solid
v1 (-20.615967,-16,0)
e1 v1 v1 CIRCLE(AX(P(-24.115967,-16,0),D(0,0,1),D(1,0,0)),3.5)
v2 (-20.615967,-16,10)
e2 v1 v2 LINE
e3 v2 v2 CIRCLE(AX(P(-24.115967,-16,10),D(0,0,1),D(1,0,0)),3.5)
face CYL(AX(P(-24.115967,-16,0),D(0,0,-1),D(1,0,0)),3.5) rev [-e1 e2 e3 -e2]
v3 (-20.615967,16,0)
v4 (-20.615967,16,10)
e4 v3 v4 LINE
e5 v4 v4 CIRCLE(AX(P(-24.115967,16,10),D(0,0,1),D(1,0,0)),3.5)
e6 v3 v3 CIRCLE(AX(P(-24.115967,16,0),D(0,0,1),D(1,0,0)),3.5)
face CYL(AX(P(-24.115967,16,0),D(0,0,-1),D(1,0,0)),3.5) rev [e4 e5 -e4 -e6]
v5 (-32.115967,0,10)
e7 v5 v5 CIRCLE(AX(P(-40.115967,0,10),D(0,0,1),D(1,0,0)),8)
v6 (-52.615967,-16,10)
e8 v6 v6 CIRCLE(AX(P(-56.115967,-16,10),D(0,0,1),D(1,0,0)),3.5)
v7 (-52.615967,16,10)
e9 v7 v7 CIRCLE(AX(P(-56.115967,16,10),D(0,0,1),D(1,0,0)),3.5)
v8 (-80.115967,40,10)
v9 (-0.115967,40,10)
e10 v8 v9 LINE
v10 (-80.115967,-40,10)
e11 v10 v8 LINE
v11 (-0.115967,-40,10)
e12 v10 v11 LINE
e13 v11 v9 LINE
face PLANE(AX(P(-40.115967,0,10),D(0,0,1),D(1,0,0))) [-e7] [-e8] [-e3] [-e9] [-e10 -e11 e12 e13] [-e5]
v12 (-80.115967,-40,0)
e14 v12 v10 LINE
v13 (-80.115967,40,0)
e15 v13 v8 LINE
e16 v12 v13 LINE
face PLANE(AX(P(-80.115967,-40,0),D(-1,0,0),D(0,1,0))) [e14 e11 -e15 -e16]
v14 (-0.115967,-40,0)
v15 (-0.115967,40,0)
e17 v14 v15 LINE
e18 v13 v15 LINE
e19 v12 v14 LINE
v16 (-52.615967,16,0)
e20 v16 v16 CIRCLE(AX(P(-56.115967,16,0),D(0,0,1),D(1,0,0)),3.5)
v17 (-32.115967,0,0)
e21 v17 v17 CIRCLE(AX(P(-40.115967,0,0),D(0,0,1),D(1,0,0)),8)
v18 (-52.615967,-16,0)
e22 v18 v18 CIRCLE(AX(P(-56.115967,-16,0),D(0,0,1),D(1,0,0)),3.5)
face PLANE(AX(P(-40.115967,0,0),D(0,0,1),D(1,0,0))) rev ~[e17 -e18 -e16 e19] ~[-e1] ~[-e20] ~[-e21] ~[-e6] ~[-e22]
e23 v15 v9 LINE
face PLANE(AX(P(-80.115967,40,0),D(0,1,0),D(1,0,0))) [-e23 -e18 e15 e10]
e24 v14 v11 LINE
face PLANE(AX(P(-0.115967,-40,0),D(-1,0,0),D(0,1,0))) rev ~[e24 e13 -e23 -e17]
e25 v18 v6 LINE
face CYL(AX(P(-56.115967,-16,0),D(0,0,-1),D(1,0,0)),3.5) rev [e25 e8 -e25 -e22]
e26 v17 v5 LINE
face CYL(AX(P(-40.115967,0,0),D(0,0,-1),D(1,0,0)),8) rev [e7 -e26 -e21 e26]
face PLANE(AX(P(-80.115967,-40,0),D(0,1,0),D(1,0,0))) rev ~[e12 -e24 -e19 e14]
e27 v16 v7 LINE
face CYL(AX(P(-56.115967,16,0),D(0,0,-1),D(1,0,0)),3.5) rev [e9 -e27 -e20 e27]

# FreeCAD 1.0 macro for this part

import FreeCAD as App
import Part
import Sketcher

V = App.Vector
Q = App.Units.Quantity

doc = App.newDocument("Part")
params = doc.addObject("Spreadsheet::Sheet", "Params")
for row, (alias, value) in enumerate([
    ("sketch1_diameter", "7 mm"),
    ("sketch1_diameter2", "16 mm"),
    ("sketch1_width", "80 mm"),
    ("pad1_length", "10 mm"),
], start=1):
    params.set(f"A{row}", alias)
    params.set(f"B{row}", "=" + value)
    params.setAlias(f"B{row}", alias)

body = doc.addObject("PartDesign::Body", "Body")

# Sketch on XY plane
sketch1 = doc.addObject("Sketcher::SketchObject", "Sketch")
body.addObject(sketch1)
sketch1.AttachmentSupport = (doc.XY_Plane, [""])
sketch1.MapMode = "FlatFace"
sketch1.addGeometry(Part.LineSegment(V(-80.1, 40, 0), V(-80.1, -40, 0)), False)
sketch1.addGeometry(Part.LineSegment(V(-80.1, -40, 0), V(-0.1, -40, 0)), False)
sketch1.addGeometry(Part.LineSegment(V(-0.1, -40, 0), V(-0.1, 40, 0)), False)
sketch1.addGeometry(Part.LineSegment(V(-0.1, 40, 0), V(-80.1, 40, 0)), False)
sketch1.addGeometry(Part.Circle(V(-56.1, -16, 0), V(0, 0, 1), 3.5), False)
sketch1.addGeometry(Part.Circle(V(-24.1, -16, 0), V(0, 0, 1), 3.5), False)
sketch1.addGeometry(Part.Circle(V(-56.1, 16, 0), V(0, 0, 1), 3.5), False)
sketch1.addGeometry(Part.Circle(V(-40.1, 0, 0), V(0, 0, 1), 8), False)
sketch1.addGeometry(Part.Circle(V(-24.1, 16, 0), V(0, 0, 1), 3.5), False)
sketch1.addConstraint(Sketcher.Constraint("Coincident", 0, 2, 1, 1))
sketch1.addConstraint(Sketcher.Constraint("Coincident", 1, 2, 2, 1))
sketch1.addConstraint(Sketcher.Constraint("Coincident", 2, 2, 3, 1))
sketch1.addConstraint(Sketcher.Constraint("Coincident", 3, 2, 0, 1))
sketch1.addConstraint(Sketcher.Constraint("Vertical", 0))
sketch1.addConstraint(Sketcher.Constraint("Horizontal", 1))
sketch1.addConstraint(Sketcher.Constraint("Vertical", 2))
sketch1.addConstraint(Sketcher.Constraint("Horizontal", 3))
sketch1.addConstraint(Sketcher.Constraint("Equal", 4, 5))
sketch1.addConstraint(Sketcher.Constraint("Equal", 5, 6))
sketch1.addConstraint(Sketcher.Constraint("Equal", 6, 8))
sketch1.addConstraint(Sketcher.Constraint("Symmetric", 4, 3, 6, 3, -1))
sketch1.addConstraint(Sketcher.Constraint("Symmetric", 5, 3, 8, 3, -1))
sketch1.addConstraint(Sketcher.Constraint("PointOnObject", 7, 3, -1))
sketch1.addConstraint(Sketcher.Constraint("Horizontal", 4, 3, 5, 3))
sketch1.addConstraint(Sketcher.Constraint("Equal", 3, 0))
sketch1.addConstraint(Sketcher.Constraint("Diameter", 4, Q("7 mm")))
sketch1.addConstraint(Sketcher.Constraint("Diameter", 7, Q("16 mm")))
sketch1.addConstraint(Sketcher.Constraint("DistanceX", 1, 1, 1, 2, Q("80 mm")))
sketch1.addConstraint(Sketcher.Constraint("DistanceY", 4, 3, -1, 1, Q("16 mm")))
sketch1.addConstraint(Sketcher.Constraint("DistanceY", 0, 2, -1, 1, Q("40 mm")))
sketch1.addConstraint(Sketcher.Constraint("DistanceX", 4, 3, 5, 3, Q("32 mm")))
sketch1.addConstraint(Sketcher.Constraint("DistanceX", 7, 3, 5, 3, Q("16 mm")))
sketch1.addConstraint(Sketcher.Constraint("DistanceX", 0, 2, 4, 3, Q("24 mm")))
sketch1.addConstraint(Sketcher.Constraint("DistanceX", 4, 3, -1, 1, Q("56.115967 mm")))
sketch1.setExpression("Constraints[16]", "Params.sketch1_diameter")
sketch1.setExpression("Constraints[17]", "Params.sketch1_diameter2")
sketch1.setExpression("Constraints[18]", "Params.sketch1_width")
pad1 = doc.addObject("PartDesign::Pad", "Pad")
body.addObject(pad1)
pad1.Profile = sketch1
pad1.setExpression("Length", "Params.pad1_length")

doc.recompute()
